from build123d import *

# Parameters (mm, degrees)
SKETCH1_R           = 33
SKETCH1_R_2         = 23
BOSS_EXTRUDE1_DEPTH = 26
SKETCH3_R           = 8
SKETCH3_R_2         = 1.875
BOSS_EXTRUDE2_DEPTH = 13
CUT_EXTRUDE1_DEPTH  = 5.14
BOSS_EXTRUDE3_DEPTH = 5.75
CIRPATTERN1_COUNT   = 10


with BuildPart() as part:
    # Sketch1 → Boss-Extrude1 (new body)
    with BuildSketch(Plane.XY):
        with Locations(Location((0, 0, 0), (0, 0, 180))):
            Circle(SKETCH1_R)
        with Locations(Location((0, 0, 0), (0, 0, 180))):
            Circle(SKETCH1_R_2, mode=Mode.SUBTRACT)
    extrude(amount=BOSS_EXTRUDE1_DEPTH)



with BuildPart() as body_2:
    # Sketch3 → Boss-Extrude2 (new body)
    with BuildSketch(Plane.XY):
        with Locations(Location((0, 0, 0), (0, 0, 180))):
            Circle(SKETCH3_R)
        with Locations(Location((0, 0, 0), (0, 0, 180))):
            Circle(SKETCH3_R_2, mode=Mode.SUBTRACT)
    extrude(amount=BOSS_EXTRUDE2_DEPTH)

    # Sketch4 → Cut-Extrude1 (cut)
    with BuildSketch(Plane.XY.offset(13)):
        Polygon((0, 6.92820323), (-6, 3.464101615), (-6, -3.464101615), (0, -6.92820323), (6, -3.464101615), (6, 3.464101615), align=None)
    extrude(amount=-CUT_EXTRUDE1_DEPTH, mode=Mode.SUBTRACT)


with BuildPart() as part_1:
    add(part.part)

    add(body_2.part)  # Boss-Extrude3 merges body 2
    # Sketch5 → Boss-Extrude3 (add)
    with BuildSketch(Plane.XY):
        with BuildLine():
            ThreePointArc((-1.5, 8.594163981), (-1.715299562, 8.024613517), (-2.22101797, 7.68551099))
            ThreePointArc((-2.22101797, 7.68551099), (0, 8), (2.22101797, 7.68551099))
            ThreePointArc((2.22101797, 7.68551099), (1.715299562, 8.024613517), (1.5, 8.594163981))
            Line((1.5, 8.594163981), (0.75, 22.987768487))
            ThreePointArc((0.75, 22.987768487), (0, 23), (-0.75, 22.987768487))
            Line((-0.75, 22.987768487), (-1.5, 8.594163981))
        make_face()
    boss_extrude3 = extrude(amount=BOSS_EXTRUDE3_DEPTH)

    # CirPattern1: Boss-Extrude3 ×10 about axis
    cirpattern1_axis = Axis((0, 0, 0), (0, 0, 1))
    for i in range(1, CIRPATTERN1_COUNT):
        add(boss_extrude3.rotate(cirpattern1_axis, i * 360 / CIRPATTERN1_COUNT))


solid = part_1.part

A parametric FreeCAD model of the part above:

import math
import FreeCAD as App
import Part
import Sketcher
from FreeCAD import Vector
Q = App.Units.Quantity

doc = App.newDocument("Part")
params = doc.addObject("Spreadsheet::Sheet", "Params")
for row, (alias, value) in enumerate([
    ("sketch1_diameter", "66 mm"),
    ("sketch1_diameter2", "46 mm"),
    ("pad1_length", "26 mm"),
    ("sketch2_diameter", "16 mm"),
    ("sketch2_diameter2", "3.75 mm"),
    ("pad2_length", "13 mm"),
    ("pocket1_length", "5.14 mm"),
    ("sketch4_radius", "1 mm"),
    ("sketch4_radius2", "8 mm"),
    ("sketch4_radius3", "23 mm"),
    ("pad3_length", "5.75 mm"),
], start=1):
    params.set(f"A{row}", alias)
    params.set(f"B{row}", "=" + value)
    params.setAlias(f"B{row}", alias)

body = doc.addObject("PartDesign::Body", "Body")

sketch1 = body.newObject("Sketcher::SketchObject", "Sketch")
sketch1.AttachmentSupport = (doc.getObject("XY_Plane"), [""])
sketch1.MapMode = "FlatFace"
sketch1.addGeometry([
    Part.Circle(Vector(0, 0, 0), Vector(0, 0, 1), 33),
    Part.Circle(Vector(0, 0, 0), Vector(0, 0, 1), 23),
], False)
sketch1.addConstraint([
    Sketcher.Constraint("Coincident", 0, 3, -1, 1),
    Sketcher.Constraint("Coincident", 1, 3, -1, 1),
    Sketcher.Constraint("Diameter", 0, 66.0),
    Sketcher.Constraint("Diameter", 1, 46.0),
])
sketch1.setExpression("Constraints[2]", "Params.sketch1_diameter")
sketch1.setExpression("Constraints[3]", "Params.sketch1_diameter2")
pad1 = body.newObject("PartDesign::Pad", "Pad")
pad1.Profile = sketch1
pad1.setExpression("Length", "Params.pad1_length")
body2 = doc.addObject("PartDesign::Body", "Body001")

sketch2 = body2.newObject("Sketcher::SketchObject", "Sketch001")
sketch2.AttachmentSupport = (doc.getObject("XY_Plane001"), [""])
sketch2.MapMode = "FlatFace"
sketch2.addGeometry([
    Part.Circle(Vector(0, 0, 0), Vector(0, 0, 1), 8),
    Part.Circle(Vector(0, 0, 0), Vector(0, 0, 1), 1.875),
], False)
sketch2.addConstraint([
    Sketcher.Constraint("Coincident", 0, 3, -1, 1),
    Sketcher.Constraint("Coincident", 1, 3, -1, 1),
    Sketcher.Constraint("Diameter", 0, 16.0),
    Sketcher.Constraint("Diameter", 1, 3.75),
])
sketch2.setExpression("Constraints[2]", "Params.sketch2_diameter")
sketch2.setExpression("Constraints[3]", "Params.sketch2_diameter2")
pad2 = body2.newObject("PartDesign::Pad", "Pad001")
pad2.Profile = sketch2
pad2.setExpression("Length", "Params.pad2_length")

sketch3 = body2.newObject("Sketcher::SketchObject", "Sketch002")
sketch3.AttachmentSupport = (doc.getObject("XY_Plane001"), [""])
sketch3.MapMode = "FlatFace"
sketch3.AttachmentOffset = App.Placement(Vector(0, 0, 13), App.Rotation())
sketch3.addGeometry([
    Part.LineSegment(Vector(0, 6.928203, 0), Vector(-6, 3.464102, 0)),
    Part.LineSegment(Vector(-6, 3.464102, 0), Vector(-6, -3.464102, 0)),
    Part.LineSegment(Vector(-6, -3.464102, 0), Vector(0, -6.928203, 0)),
    Part.LineSegment(Vector(0, -6.928203, 0), Vector(6, -3.464102, 0)),
    Part.LineSegment(Vector(6, -3.464102, 0), Vector(6, 3.464102, 0)),
    Part.LineSegment(Vector(6, 3.464102, 0), Vector(0, 6.928203, 0)),
], False)
sketch3.addConstraint([
    Sketcher.Constraint("Coincident", 0, 2, 1, 1),
    Sketcher.Constraint("Coincident", 1, 2, 2, 1),
    Sketcher.Constraint("Coincident", 2, 2, 3, 1),
    Sketcher.Constraint("Coincident", 3, 2, 4, 1),
    Sketcher.Constraint("Coincident", 4, 2, 5, 1),
    Sketcher.Constraint("Coincident", 5, 2, 0, 1),
    Sketcher.Constraint("Vertical", 1),
    Sketcher.Constraint("Vertical", 4),
    Sketcher.Constraint("Symmetric", 0, 2, 3, 2, -1, 1),
    Sketcher.Constraint("Symmetric", 2, 2, 5, 2, -1, 1),
    Sketcher.Constraint("PointOnObject", 2, 2, -2),
    Sketcher.Constraint("Parallel", 2, 5),
    Sketcher.Constraint("Horizontal", 1, 2, 3, 2),
    Sketcher.Constraint("Angle", 0, Q("-150 deg")),
    Sketcher.Constraint("DistanceX", 0, 2, -1, 1, 6.0),
    Sketcher.Constraint("DistanceY", -1, 1, 0, 2, 3.464102),
])
pocket1 = body2.newObject("PartDesign::Pocket", "Pocket")
pocket1.Profile = sketch3
pocket1.setExpression("Length", "Params.pocket1_length")
body.AllowCompound = True
doc.recompute()

boolean = body.newObject("PartDesign::Boolean", "Boolean")
boolean.Type = "Fuse"
boolean.addObjects([body2])

sketch4 = body.newObject("Sketcher::SketchObject", "Sketch003")
sketch4.AttachmentSupport = (doc.getObject("XY_Plane"), [""])
sketch4.MapMode = "FlatFace"
sketch4.addGeometry([
    Part.ArcOfCircle(Part.Circle(Vector(-2.498645, 8.6462, 0), Vector(0, 0, 1), 1), math.radians(-73.881358), math.radians(-2.982784)),
    Part.ArcOfCircle(Part.Circle(Vector(0, 0, 0), Vector(0, 0, 1), 8), math.radians(73.881358), math.radians(106.118642)),
    Part.ArcOfCircle(Part.Circle(Vector(2.498645, 8.6462, 0), Vector(0, 0, 1), 1), math.radians(-177.017216), math.radians(-106.118642)),
    Part.LineSegment(Vector(1.5, 8.594164, 0), Vector(0.75, 22.987768, 0)),
    Part.ArcOfCircle(Part.Circle(Vector(0, 0, 0), Vector(0, 0, 1), 23), math.radians(88.131328), math.radians(91.868672)),
    Part.LineSegment(Vector(-0.75, 22.987768, 0), Vector(-1.5, 8.594164, 0)),
], False)
sketch4.addConstraint([
    Sketcher.Constraint("Tangent", 0, 1, 1, 2),
    Sketcher.Constraint("Tangent", 1, 1, 2, 2),
    Sketcher.Constraint("Tangent", 2, 1, 3, 1),
    Sketcher.Constraint("Coincident", 3, 2, 4, 1),
    Sketcher.Constraint("Coincident", 4, 2, 5, 1),
    Sketcher.Constraint("Tangent", 5, 2, 0, 2),
    Sketcher.Constraint("Coincident", 1, 3, -1, 1),
    Sketcher.Constraint("Coincident", 4, 3, -1, 1),
    Sketcher.Constraint("Equal", 0, 2),
    Sketcher.Constraint("Symmetric", 2, 1, 5, 2, -2),
    Sketcher.Constraint("Radius", 0, 1.0),
    Sketcher.Constraint("Radius", 1, 8.0),
    Sketcher.Constraint("Radius", 4, 23.0),
    Sketcher.Constraint("DistanceX", 5, 2, 2, 1, 3.0),
    Sketcher.Constraint("DistanceX", 4, 2, 3, 2, 1.5),
])
sketch4.setExpression("Constraints[10]", "Params.sketch4_radius")
sketch4.setExpression("Constraints[11]", "Params.sketch4_radius2")
sketch4.setExpression("Constraints[12]", "Params.sketch4_radius3")
pad3 = body.newObject("PartDesign::Pad", "Pad002")
pad3.Profile = sketch4
pad3.setExpression("Length", "Params.pad3_length")
doc.recompute()

polarpattern = body.newObject("PartDesign::PolarPattern", "PolarPattern")
polarpattern.Originals = [pad3]
polarpattern.Axis = (doc.getObject("Z_Axis"), [""])
polarpattern.Angle = 360
polarpattern.Occurrences = 10
body.Tip = polarpattern

doc.recompute()
